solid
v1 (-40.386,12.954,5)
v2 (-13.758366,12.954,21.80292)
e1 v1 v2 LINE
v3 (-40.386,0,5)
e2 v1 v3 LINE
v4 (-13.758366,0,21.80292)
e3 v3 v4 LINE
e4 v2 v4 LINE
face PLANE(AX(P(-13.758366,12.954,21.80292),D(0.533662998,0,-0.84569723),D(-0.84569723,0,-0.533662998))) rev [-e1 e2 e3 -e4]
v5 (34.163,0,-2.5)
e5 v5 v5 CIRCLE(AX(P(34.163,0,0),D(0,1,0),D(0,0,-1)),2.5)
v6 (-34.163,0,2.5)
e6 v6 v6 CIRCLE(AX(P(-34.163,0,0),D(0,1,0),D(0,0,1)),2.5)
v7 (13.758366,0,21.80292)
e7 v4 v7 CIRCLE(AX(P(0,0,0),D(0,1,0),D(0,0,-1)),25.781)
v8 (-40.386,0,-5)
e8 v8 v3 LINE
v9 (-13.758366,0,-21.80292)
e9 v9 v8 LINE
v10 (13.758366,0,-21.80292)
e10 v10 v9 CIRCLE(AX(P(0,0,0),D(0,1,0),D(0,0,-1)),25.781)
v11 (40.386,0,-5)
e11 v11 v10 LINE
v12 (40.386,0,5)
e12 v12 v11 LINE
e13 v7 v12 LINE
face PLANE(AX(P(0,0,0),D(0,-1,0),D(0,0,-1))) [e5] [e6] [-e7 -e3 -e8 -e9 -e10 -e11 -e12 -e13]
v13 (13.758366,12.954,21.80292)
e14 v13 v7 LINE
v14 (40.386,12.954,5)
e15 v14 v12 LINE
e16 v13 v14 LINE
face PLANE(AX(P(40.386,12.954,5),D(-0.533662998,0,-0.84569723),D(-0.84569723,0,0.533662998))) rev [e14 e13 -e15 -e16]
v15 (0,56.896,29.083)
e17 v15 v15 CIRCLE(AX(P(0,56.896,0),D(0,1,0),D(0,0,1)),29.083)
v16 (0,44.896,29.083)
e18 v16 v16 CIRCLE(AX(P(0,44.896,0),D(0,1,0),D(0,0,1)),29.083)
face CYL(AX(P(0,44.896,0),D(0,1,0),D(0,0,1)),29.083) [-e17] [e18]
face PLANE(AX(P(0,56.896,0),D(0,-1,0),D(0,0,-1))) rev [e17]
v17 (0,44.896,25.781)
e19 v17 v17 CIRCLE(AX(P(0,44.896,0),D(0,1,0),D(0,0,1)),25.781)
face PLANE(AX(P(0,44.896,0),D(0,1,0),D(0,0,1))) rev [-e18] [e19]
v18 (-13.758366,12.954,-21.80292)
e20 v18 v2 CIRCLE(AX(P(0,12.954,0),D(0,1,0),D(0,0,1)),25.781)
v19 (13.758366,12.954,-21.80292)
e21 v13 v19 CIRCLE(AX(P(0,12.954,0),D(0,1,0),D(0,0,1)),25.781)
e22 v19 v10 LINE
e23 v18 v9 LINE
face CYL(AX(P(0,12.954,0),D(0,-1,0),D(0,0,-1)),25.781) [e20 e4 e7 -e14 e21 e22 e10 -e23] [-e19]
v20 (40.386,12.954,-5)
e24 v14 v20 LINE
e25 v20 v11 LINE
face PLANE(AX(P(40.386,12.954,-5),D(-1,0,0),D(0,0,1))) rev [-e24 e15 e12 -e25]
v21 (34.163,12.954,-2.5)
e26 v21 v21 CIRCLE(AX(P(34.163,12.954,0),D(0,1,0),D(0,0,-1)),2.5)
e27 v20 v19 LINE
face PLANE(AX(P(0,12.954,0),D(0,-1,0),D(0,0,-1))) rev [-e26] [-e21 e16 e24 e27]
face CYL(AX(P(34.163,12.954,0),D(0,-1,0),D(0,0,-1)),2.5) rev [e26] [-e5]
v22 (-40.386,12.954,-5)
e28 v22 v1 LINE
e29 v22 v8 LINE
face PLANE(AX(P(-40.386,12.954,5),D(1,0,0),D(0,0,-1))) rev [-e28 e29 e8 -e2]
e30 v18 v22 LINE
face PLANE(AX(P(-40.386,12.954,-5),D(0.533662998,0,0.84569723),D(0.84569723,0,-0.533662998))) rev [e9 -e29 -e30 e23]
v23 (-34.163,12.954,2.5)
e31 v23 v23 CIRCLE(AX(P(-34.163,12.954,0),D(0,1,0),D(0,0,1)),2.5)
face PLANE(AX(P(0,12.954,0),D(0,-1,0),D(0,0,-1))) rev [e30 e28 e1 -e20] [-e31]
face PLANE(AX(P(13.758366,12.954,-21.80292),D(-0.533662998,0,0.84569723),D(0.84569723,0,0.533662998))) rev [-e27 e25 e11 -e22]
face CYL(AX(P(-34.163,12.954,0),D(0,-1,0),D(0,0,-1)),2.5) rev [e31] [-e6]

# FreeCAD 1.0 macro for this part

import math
import FreeCAD as App
import Part
import Sketcher

V = App.Vector
Q = App.Units.Quantity

doc = App.newDocument("Part")
body = doc.addObject("PartDesign::Body", "Body")

sketch1 = doc.addObject("Sketcher::SketchObject", "Sketch")
body.addObject(sketch1)
sketch1.AttachmentSupport = (doc.XZ_Plane, [""])
sketch1.MapMode = "FlatFace"
sketch1.addGeometry(Part.LineSegment(V(-40.386, -5, 0), V(-40.386, 5, 0)), False)
sketch1.addGeometry(Part.LineSegment(V(-40.386, 5, 0), V(-13.758366, 21.80292, 0)), False)
sketch1.addGeometry(Part.ArcOfCircle(Part.Circle(V(0, 0, 0), V(0, 0, 1), 25.781), math.radians(57.746715), math.radians(122.253285)), False)
sketch1.addGeometry(Part.LineSegment(V(13.758366, 21.80292, 0), V(40.386, 5, 0)), False)
sketch1.addGeometry(Part.LineSegment(V(40.386, 5, 0), V(40.386, -5, 0)), False)
sketch1.addGeometry(Part.LineSegment(V(40.386, -5, 0), V(13.758366, -21.80292, 0)), False)
sketch1.addGeometry(Part.ArcOfCircle(Part.Circle(V(0, 0, 0), V(0, 0, 1), 25.781), math.radians(-122.253285), math.radians(-57.746715)), False)
sketch1.addGeometry(Part.LineSegment(V(-13.758366, -21.80292, 0), V(-40.386, -5, 0)), False)
sketch1.addGeometry(Part.Circle(V(34.163, 0, 0), V(0, 0, 1), 2.5), False)
sketch1.addGeometry(Part.Circle(V(-34.163, 0, 0), V(0, 0, 1), 2.5), False)
sketch1.addConstraint(Sketcher.Constraint("Coincident", 0, 2, 1, 1))
sketch1.addConstraint(Sketcher.Constraint("Tangent", 1, 2, 2, 2))
sketch1.addConstraint(Sketcher.Constraint("Tangent", 2, 1, 3, 1))
sketch1.addConstraint(Sketcher.Constraint("Coincident", 3, 2, 4, 1))
sketch1.addConstraint(Sketcher.Constraint("Coincident", 4, 2, 5, 1))
sketch1.addConstraint(Sketcher.Constraint("Tangent", 5, 2, 6, 2))
sketch1.addConstraint(Sketcher.Constraint("Tangent", 6, 1, 7, 1))
sketch1.addConstraint(Sketcher.Constraint("Coincident", 7, 2, 0, 1))
sketch1.addConstraint(Sketcher.Constraint("Vertical", 0))
sketch1.addConstraint(Sketcher.Constraint("Vertical", 4))
sketch1.addConstraint(Sketcher.Constraint("Coincident", 2, 3, -1, 1))
sketch1.addConstraint(Sketcher.Constraint("Coincident", 6, 3, -1, 1))
sketch1.addConstraint(Sketcher.Constraint("Equal", 2, 6))
sketch1.addConstraint(Sketcher.Constraint("Equal", 8, 9))
sketch1.addConstraint(Sketcher.Constraint("Symmetric", 8, 3, 9, 3, -1, 1))
sketch1.addConstraint(Sketcher.Constraint("Symmetric", 0, 2, 4, 2, -1, 1))
sketch1.addConstraint(Sketcher.Constraint("PointOnObject", 8, 3, -1))
sketch1.addConstraint(Sketcher.Constraint("Parallel", 3, 7))
sketch1.addConstraint(Sketcher.Constraint("Horizontal", 1, 2, 2, 1))
sketch1.addConstraint(Sketcher.Constraint("Radius", 2, Q("1.015 in")))
sketch1.addConstraint(Sketcher.Constraint("Diameter", 8, Q("5 mm")))
sketch1.addConstraint(Sketcher.Constraint("DistanceX", 0, 2, -1, 1, Q("1.59 in")))
sketch1.addConstraint(Sketcher.Constraint("DistanceX", 9, 3, 8, 3, Q("2.69 in")))
sketch1.addConstraint(Sketcher.Constraint("DistanceY", 0, 1, 0, 2, Q("10 mm")))
pad1 = doc.addObject("PartDesign::Pad", "Pad")
body.addObject(pad1)
pad1.Profile = sketch1
pad1.Length = Q("0.51 in")
pad1.Reversed = True

sketch2 = doc.addObject("Sketcher::SketchObject", "Sketch001")
body.addObject(sketch2)
sketch2.AttachmentSupport = (doc.XZ_Plane, [""])
sketch2.MapMode = "FlatFace"
sketch2.AttachmentOffset = App.Placement(V(0, 0, -0.51 * 25.4), App.Rotation())
sketch2.addGeometry(Part.Circle(V(0, 0, 0), V(0, 0, 1), 25.781), False)
sketch2.addConstraint(Sketcher.Constraint("Coincident", 0, 3, -1, 1))
sketch2.addConstraint(Sketcher.Constraint("Diameter", 0, Q("2.03 in")))
pad2 = doc.addObject("PartDesign::Pad", "Pad001")
body.addObject(pad2)
pad2.Profile = sketch2
pad2.Length = Q("1.73 in")
pad2.Reversed = True

sketch3 = doc.addObject("Sketcher::SketchObject", "Sketch002")
body.addObject(sketch3)
sketch3.AttachmentSupport = (doc.XZ_Plane, [""])
sketch3.MapMode = "FlatFace"
sketch3.AttachmentOffset = App.Placement(V(0, 0, -2.24 * 25.4), App.Rotation())
sketch3.addGeometry(Part.Circle(V(0, 0, 0), V(0, 0, 1), 29.083), False)
sketch3.addConstraint(Sketcher.Constraint("Coincident", 0, 3, -1, 1))
sketch3.addConstraint(Sketcher.Constraint("Diameter", 0, Q("2.29 in")))
pad3 = doc.addObject("PartDesign::Pad", "Pad002")
body.addObject(pad3)
pad3.Profile = sketch3
pad3.Length = 12

doc.recompute()
